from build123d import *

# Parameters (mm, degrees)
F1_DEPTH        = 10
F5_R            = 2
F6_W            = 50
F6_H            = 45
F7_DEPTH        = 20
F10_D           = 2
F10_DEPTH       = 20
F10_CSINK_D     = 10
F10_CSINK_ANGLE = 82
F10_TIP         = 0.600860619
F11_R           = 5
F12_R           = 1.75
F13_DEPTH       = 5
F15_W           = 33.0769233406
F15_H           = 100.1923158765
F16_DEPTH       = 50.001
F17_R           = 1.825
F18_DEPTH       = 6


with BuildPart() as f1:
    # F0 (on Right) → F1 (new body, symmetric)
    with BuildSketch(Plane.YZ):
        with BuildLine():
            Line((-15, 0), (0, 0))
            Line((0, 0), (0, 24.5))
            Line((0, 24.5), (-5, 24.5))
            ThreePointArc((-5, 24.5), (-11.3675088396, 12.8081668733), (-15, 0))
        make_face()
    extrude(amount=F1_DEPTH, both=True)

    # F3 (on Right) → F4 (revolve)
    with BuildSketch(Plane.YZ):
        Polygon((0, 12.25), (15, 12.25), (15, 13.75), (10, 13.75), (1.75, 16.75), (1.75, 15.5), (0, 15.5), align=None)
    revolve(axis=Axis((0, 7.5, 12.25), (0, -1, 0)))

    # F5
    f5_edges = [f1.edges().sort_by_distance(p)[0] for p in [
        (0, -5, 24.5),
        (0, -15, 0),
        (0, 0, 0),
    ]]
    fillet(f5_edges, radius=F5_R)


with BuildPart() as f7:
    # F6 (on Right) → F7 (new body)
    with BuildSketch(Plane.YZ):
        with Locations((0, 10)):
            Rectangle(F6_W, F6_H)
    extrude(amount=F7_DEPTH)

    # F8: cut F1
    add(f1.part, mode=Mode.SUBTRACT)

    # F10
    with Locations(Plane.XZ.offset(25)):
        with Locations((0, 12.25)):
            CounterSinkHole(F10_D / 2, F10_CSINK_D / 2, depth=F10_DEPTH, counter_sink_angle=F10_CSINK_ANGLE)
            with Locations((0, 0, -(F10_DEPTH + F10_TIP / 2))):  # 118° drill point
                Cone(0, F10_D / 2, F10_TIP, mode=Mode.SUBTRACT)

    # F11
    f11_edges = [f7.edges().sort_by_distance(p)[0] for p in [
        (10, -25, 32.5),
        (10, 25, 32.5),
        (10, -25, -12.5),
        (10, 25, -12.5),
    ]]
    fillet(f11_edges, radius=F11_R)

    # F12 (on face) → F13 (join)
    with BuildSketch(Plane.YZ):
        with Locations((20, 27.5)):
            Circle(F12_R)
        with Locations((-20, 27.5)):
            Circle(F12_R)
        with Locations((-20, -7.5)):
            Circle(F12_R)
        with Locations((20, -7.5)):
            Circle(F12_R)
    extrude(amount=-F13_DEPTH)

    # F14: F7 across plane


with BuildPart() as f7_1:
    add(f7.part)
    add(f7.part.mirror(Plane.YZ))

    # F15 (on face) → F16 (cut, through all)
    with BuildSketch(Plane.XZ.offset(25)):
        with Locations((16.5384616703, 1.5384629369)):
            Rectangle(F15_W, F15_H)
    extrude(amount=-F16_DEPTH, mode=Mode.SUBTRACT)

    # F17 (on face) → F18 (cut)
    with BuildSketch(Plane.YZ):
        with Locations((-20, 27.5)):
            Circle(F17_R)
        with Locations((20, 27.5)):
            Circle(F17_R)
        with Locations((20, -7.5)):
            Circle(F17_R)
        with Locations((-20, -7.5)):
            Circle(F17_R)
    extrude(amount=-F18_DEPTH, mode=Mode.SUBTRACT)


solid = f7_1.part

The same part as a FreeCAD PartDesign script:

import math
import FreeCAD as App
import Part
import Sketcher


def edges_at(feature, points):
    """Names of the edges that pass closest to the given points."""
    edges = feature.Shape.Edges
    near = lambda p: min(range(len(edges)), key=lambda i: edges[i].distToShape(Part.Vertex(*p))[0])
    return sorted({f"Edge{near(p) + 1}" for p in points})

doc = App.newDocument("Part")
body = doc.addObject("PartDesign::Body", "Body")

sketch1 = doc.addObject("Sketcher::SketchObject", "Sketch")
body.addObject(sketch1)
sketch1.AttachmentSupport = (doc.YZ_Plane, [""])
sketch1.MapMode = "FlatFace"
sketch1.addGeometry([
    Part.LineSegment(App.Vector(-15, 0, 0), App.Vector(0, 0, 0)),
    Part.LineSegment(App.Vector(0, 0, 0), App.Vector(0, 24, 0)),
    Part.LineSegment(App.Vector(0, 24, 0), App.Vector(-5, 24, 0)),
    Part.ArcOfCircle(Part.Circle(App.Vector(44, -10, 0), App.Vector(0, 0, 1), 60), math.radians(145), math.radians(171)),
], False)
sketch1.addConstraint([
    Sketcher.Constraint("Coincident", 0, 2, 1, 1),
    Sketcher.Constraint("Coincident", 1, 2, 2, 1),
    Sketcher.Constraint("Coincident", 2, 2, 3, 1),
    Sketcher.Constraint("Coincident", 3, 2, 0, 1),
    Sketcher.Constraint("Horizontal", 0),
    Sketcher.Constraint("Vertical", 1),
    Sketcher.Constraint("Horizontal", 2),
    Sketcher.Constraint("Coincident", 0, 2, -1, 1),
    Sketcher.Constraint("Radius", 3, 60.0),
    Sketcher.Constraint("DistanceX", 0, 1, 0, 2, 15.0),
    Sketcher.Constraint("DistanceX", 2, 2, 2, 1, 5.0),
    Sketcher.Constraint("DistanceY", 1, 1, 1, 2, 24.5),
])
pad1 = doc.addObject("PartDesign::Pad", "Pad")
body.addObject(pad1)
pad1.Profile = sketch1
pad1.Length = 20
pad1.Midplane = True

sketch2 = doc.addObject("Sketcher::SketchObject", "Sketch001")
body.addObject(sketch2)
sketch2.AttachmentSupport = (doc.YZ_Plane, [""])
sketch2.MapMode = "FlatFace"
sketch2.addGeometry([
    Part.LineSegment(App.Vector(0, 12.2, 0), App.Vector(15, 12.2, 0)),
    Part.LineSegment(App.Vector(15, 12.2, 0), App.Vector(15, 13.8, 0)),
    Part.LineSegment(App.Vector(15, 13.8, 0), App.Vector(10, 13.8, 0)),
    Part.LineSegment(App.Vector(10, 13.8, 0), App.Vector(1.8, 16.8, 0)),
    Part.LineSegment(App.Vector(1.8, 16.8, 0), App.Vector(1.8, 15.5, 0)),
    Part.LineSegment(App.Vector(1.8, 15.5, 0), App.Vector(0, 15.5, 0)),
    Part.LineSegment(App.Vector(0, 15.5, 0), App.Vector(0, 12.2, 0)),
], False)
sketch2.addGeometry(Part.LineSegment(App.Vector(15, 12.2, 0), App.Vector(0, 12.2, 0)), True)
sketch2.addConstraint([
    Sketcher.Constraint("Coincident", 0, 2, 1, 1),
    Sketcher.Constraint("Coincident", 1, 2, 2, 1),
    Sketcher.Constraint("Coincident", 2, 2, 3, 1),
    Sketcher.Constraint("Coincident", 3, 2, 4, 1),
    Sketcher.Constraint("Coincident", 4, 2, 5, 1),
    Sketcher.Constraint("Coincident", 5, 2, 6, 1),
    Sketcher.Constraint("Coincident", 6, 2, 0, 1),
    Sketcher.Constraint("Horizontal", 0),
    Sketcher.Constraint("Vertical", 1),
    Sketcher.Constraint("Horizontal", 2),
    Sketcher.Constraint("Vertical", 4),
    Sketcher.Constraint("Horizontal", 5),
    Sketcher.Constraint("Vertical", 6),
    Sketcher.Constraint("Horizontal", 7),
    Sketcher.Constraint("Coincident", 7, 1, 0, 2),
    Sketcher.Constraint("PointOnObject", 5, 2, -2),
    Sketcher.Constraint("PointOnObject", 7, 2, -2),
    Sketcher.Constraint("DistanceX", 0, 1, 0, 2, 15.0),
    Sketcher.Constraint("DistanceX", 2, 2, 2, 1, 5.0),
    Sketcher.Constraint("DistanceY", 1, 1, 1, 2, 1.5),
    Sketcher.Constraint("DistanceY", 2, 2, 3, 2, 3.0),
    Sketcher.Constraint("DistanceX", 5, 2, 5, 1, 1.75),
    Sketcher.Constraint("DistanceY", 4, 2, 4, 1, 1.25),
    Sketcher.Constraint("DistanceY", -1, 1, 4, 2, 15.5),
])
revolution = doc.addObject("PartDesign::Revolution", "Revolution")
body.addObject(revolution)
revolution.Profile = sketch2
revolution.ReferenceAxis = (sketch2, ["Axis0"])
revolution.Angle = 360
doc.recompute()

fillet = doc.addObject("PartDesign::Fillet", "Fillet")
body.addObject(fillet)
fillet.Base = (revolution, edges_at(revolution, [(0, -5, 24.5), (0, -15, 0), (0, 0, 0)]))
fillet.Radius = 2
body2 = doc.addObject("PartDesign::Body", "Body001")

sketch3 = doc.addObject("Sketcher::SketchObject", "Sketch002")
body2.addObject(sketch3)
sketch3.AttachmentSupport = (doc.getObject("YZ_Plane001"), [""])
sketch3.MapMode = "FlatFace"
sketch3.addGeometry([
    Part.LineSegment(App.Vector(-25, 32, 0), App.Vector(-25, -12, 0)),
    Part.LineSegment(App.Vector(-25, -12, 0), App.Vector(25, -12, 0)),
    Part.LineSegment(App.Vector(25, -12, 0), App.Vector(25, 32, 0)),
    Part.LineSegment(App.Vector(25, 32, 0), App.Vector(-25, 32, 0)),
], False)
sketch3.addConstraint([
    Sketcher.Constraint("Coincident", 0, 2, 1, 1),
    Sketcher.Constraint("Coincident", 1, 2, 2, 1),
    Sketcher.Constraint("Coincident", 2, 2, 3, 1),
    Sketcher.Constraint("Coincident", 3, 2, 0, 1),
    Sketcher.Constraint("Vertical", 0),
    Sketcher.Constraint("Horizontal", 1),
    Sketcher.Constraint("Vertical", 2),
    Sketcher.Constraint("Horizontal", 3),
    Sketcher.Constraint("DistanceX", 1, 1, 1, 2, 50.0),
    Sketcher.Constraint("DistanceY", 0, 2, 0, 1, 45.0),
    Sketcher.Constraint("DistanceX", 0, 2, -1, 1, 25.0),
    Sketcher.Constraint("DistanceY", 0, 2, -1, 1, 12.5),
])
pad2 = doc.addObject("PartDesign::Pad", "Pad001")
body2.addObject(pad2)
pad2.Profile = sketch3
pad2.Length = 20
doc.recompute()

boolean = doc.addObject("PartDesign::Boolean", "Boolean")
body2.addObject(boolean)
boolean.Type = "Cut"
boolean.addObjects([body])

sketch4 = doc.addObject("Sketcher::SketchObject", "Sketch003")
body2.addObject(sketch4)
sketch4.AttachmentSupport = (doc.getObject("XZ_Plane001"), [""])
sketch4.MapMode = "FlatFace"
sketch4.AttachmentOffset = App.Placement(App.Vector(0, 0, 25), App.Rotation())
sketch4.addGeometry(Part.Circle(App.Vector(0, 12.2, 0), App.Vector(0, 0, 1), 1), False)
sketch4.addConstraint([
    Sketcher.Constraint("PointOnObject", 0, 3, -2),
    Sketcher.Constraint("Diameter", 0, 2.0),
    Sketcher.Constraint("DistanceY", -1, 1, 0, 3, 12.25),
])
doc.recompute()
hole = doc.addObject("PartDesign::Hole", "Hole")
body2.addObject(hole)
hole.Profile = sketch4
hole.ThreadType = "None"
hole.Diameter = 2
hole.DepthType = "Dimension"
hole.Depth = 20
hole.DrillPoint = "Angled"
hole.DrillPointAngle = 118
hole.HoleCutType = "Countersink"
hole.HoleCutDiameter = 10
hole.HoleCutCountersinkAngle = 82
doc.recompute()

fillet2 = doc.addObject("PartDesign::Fillet", "Fillet001")
body2.addObject(fillet2)
fillet2.Base = (hole, edges_at(hole, [
    (10, -25, 32.5),
    (10, 25, 32.5),
    (10, -25, -12.5),
    (10, 25, -12.5),
]))
fillet2.Radius = 5

sketch5 = doc.addObject("Sketcher::SketchObject", "Sketch004")
body2.addObject(sketch5)
sketch5.AttachmentSupport = (doc.getObject("YZ_Plane001"), [""])
sketch5.MapMode = "FlatFace"
sketch5.addGeometry([
    Part.Circle(App.Vector(20, 27.5, 0), App.Vector(0, 0, 1), 1.8),
    Part.Circle(App.Vector(-20, 27.5, 0), App.Vector(0, 0, 1), 1.8),
    Part.Circle(App.Vector(-20, -7.5, 0), App.Vector(0, 0, 1), 1.8),
    Part.Circle(App.Vector(20, -7.5, 0), App.Vector(0, 0, 1), 1.8),
], False)
sketch5.addConstraint([
    Sketcher.Constraint("Equal", 0, 1),
    Sketcher.Constraint("Equal", 1, 2),
    Sketcher.Constraint("Equal", 2, 3),
    Sketcher.Constraint("Symmetric", 0, 3, 1, 3, -2),
    Sketcher.Constraint("Symmetric", 2, 3, 3, 3, -2),
    Sketcher.Constraint("Vertical", 1, 3, 2, 3),
    Sketcher.Constraint("Diameter", 0, 3.5),
    Sketcher.Constraint("DistanceX", -1, 1, 0, 3, 20.0),
    Sketcher.Constraint("DistanceY", 2, 3, 1, 3, 35.0),
    Sketcher.Constraint("DistanceY", -1, 1, 0, 3, 27.5),
])
pad3 = doc.addObject("PartDesign::Pad", "Pad002")
body2.addObject(pad3)
pad3.Profile = sketch5
pad3.Length = 5
pad3.Reversed = True
body3 = doc.addObject("PartDesign::Body", "Body002")
doc.recompute()

body3.BaseFeature = body2
doc.recompute()

mirroring = doc.addObject("Part::Mirroring", "Mirroring")
mirroring.Source = body2
mirroring.Base = App.Vector(0, 0, 0)
mirroring.Normal = App.Vector(1, 0, 0)
body4 = doc.addObject("PartDesign::Body", "Body003")
body4.BaseFeature = mirroring
boolean2 = doc.addObject("PartDesign::Boolean", "Boolean001")
body3.addObject(boolean2)
boolean2.Type = "Fuse"
boolean2.addObjects([body4])
doc.recompute()

sketch6 = doc.addObject("Sketcher::SketchObject", "Sketch005")
body3.addObject(sketch6)
sketch6.AttachmentSupport = (doc.getObject("XZ_Plane002"), [""])
sketch6.MapMode = "FlatFace"
sketch6.AttachmentOffset = App.Placement(App.Vector(0, 0, 25), App.Rotation())
sketch6.addGeometry([
    Part.LineSegment(App.Vector(0, 52, 0), App.Vector(0, -49, 0)),
    Part.LineSegment(App.Vector(0, -49, 0), App.Vector(33, -49, 0)),
    Part.LineSegment(App.Vector(33, -49, 0), App.Vector(33, 52, 0)),
    Part.LineSegment(App.Vector(33, 52, 0), App.Vector(0, 52, 0)),
], False)
sketch6.addConstraint([
    Sketcher.Constraint("Coincident", 0, 2, 1, 1),
    Sketcher.Constraint("Coincident", 1, 2, 2, 1),
    Sketcher.Constraint("Coincident", 2, 2, 3, 1),
    Sketcher.Constraint("Coincident", 3, 2, 0, 1),
    Sketcher.Constraint("Vertical", 0),
    Sketcher.Constraint("Horizontal", 1),
    Sketcher.Constraint("Vertical", 2),
    Sketcher.Constraint("Horizontal", 3),
    Sketcher.Constraint("PointOnObject", 0, 2, -2),
    Sketcher.Constraint("DistanceX", 1, 1, 1, 2, 33.076923),
    Sketcher.Constraint("DistanceY", 0, 2, 0, 1, 100.192316),
    Sketcher.Constraint("DistanceY", -1, 1, 2, 2, 51.634621),
])
pocket1 = doc.addObject("PartDesign::Pocket", "Pocket")
body3.addObject(pocket1)
pocket1.Profile = sketch6
pocket1.Type = "ThroughAll"

sketch7 = doc.addObject("Sketcher::SketchObject", "Sketch006")
body3.addObject(sketch7)
sketch7.AttachmentSupport = (doc.getObject("YZ_Plane002"), [""])
sketch7.MapMode = "FlatFace"
sketch7.addGeometry([
    Part.Circle(App.Vector(-20, 27.5, 0), App.Vector(0, 0, 1), 1.8),
    Part.Circle(App.Vector(20, 27.5, 0), App.Vector(0, 0, 1), 1.8),
    Part.Circle(App.Vector(20, -7.5, 0), App.Vector(0, 0, 1), 1.8),
    Part.Circle(App.Vector(-20, -7.5, 0), App.Vector(0, 0, 1), 1.8),
], False)
sketch7.addConstraint([
    Sketcher.Constraint("Equal", 0, 1),
    Sketcher.Constraint("Equal", 1, 2),
    Sketcher.Constraint("Equal", 2, 3),
    Sketcher.Constraint("Symmetric", 0, 3, 1, 3, -2),
    Sketcher.Constraint("Symmetric", 2, 3, 3, 3, -2),
    Sketcher.Constraint("Vertical", 1, 3, 2, 3),
    Sketcher.Constraint("Diameter", 0, 3.65),
    Sketcher.Constraint("DistanceX", 0, 3, -1, 1, 20.0),
    Sketcher.Constraint("DistanceY", 2, 3, 1, 3, 35.0),
    Sketcher.Constraint("DistanceY", -1, 1, 0, 3, 27.5),
])
pocket2 = doc.addObject("PartDesign::Pocket", "Pocket001")
body3.addObject(pocket2)
pocket2.Profile = sketch7
pocket2.Length = 6
mirroring.Visibility = False

doc.recompute()
